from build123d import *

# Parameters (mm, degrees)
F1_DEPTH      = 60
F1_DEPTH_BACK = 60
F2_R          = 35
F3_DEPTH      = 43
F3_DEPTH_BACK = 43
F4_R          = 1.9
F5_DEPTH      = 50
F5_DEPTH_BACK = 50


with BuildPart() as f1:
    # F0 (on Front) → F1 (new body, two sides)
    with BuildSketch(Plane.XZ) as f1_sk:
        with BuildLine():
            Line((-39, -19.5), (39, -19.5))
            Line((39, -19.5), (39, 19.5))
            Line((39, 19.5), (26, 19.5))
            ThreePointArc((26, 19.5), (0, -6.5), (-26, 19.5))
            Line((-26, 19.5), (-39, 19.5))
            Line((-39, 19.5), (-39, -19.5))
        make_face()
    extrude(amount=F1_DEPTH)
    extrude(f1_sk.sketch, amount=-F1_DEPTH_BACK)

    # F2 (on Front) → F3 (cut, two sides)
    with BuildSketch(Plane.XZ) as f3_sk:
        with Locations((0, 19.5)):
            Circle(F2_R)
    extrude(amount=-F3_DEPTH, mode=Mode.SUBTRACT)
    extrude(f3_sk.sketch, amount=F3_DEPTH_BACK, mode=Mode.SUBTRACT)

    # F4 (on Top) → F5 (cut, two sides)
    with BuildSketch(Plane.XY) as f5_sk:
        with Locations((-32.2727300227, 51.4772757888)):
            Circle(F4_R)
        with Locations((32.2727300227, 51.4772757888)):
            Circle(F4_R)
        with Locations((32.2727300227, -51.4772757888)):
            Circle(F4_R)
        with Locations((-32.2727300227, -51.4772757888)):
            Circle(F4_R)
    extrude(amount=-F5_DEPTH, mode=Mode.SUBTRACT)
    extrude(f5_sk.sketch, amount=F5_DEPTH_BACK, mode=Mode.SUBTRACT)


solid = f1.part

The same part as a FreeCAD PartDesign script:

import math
import FreeCAD as App
import Part
import Sketcher
from FreeCAD import Vector

doc = App.newDocument("Part")
params = doc.addObject("Spreadsheet::Sheet", "Params")
for row, (alias, value) in enumerate([
    ("sketch1_radius", "26 mm"),
    ("sketch1_width", "78 mm"),
    ("sketch1_height", "39 mm"),
    ("pad1_length", "60 mm"),
    ("pad1_length2", "60 mm"),
    ("sketch2_diameter", "70 mm"),
    ("pocket1_length", "43 mm"),
    ("pocket1_length2", "43 mm"),
    ("sketch3_diameter", "3.8 mm"),
], start=1):
    params.set(f"A{row}", alias)
    params.set(f"B{row}", "=" + value)
    params.setAlias(f"B{row}", alias)

body = doc.addObject("PartDesign::Body", "Body")

sketch1 = body.newObject("Sketcher::SketchObject", "Sketch")
sketch1.AttachmentSupport = (doc.getObject("XZ_Plane"), [""])
sketch1.MapMode = "FlatFace"
sketch1.addGeometry([
    Part.LineSegment(Vector(-39, -20, 0), Vector(39, -20, 0)),
    Part.LineSegment(Vector(39, -20, 0), Vector(39, 20, 0)),
    Part.LineSegment(Vector(39, 20, 0), Vector(26, 20, 0)),
    Part.ArcOfCircle(Part.Circle(Vector(0, 20, 0), Vector(0, 0, 1), 26), math.radians(180), math.radians(360)),
    Part.LineSegment(Vector(-26, 20, 0), Vector(-39, 20, 0)),
    Part.LineSegment(Vector(-39, 20, 0), Vector(-39, -20, 0)),
], False)
sketch1.addConstraint([
    Sketcher.Constraint("Coincident", 0, 2, 1, 1),
    Sketcher.Constraint("Coincident", 1, 2, 2, 1),
    Sketcher.Constraint("Coincident", 2, 2, 3, 2),
    Sketcher.Constraint("Coincident", 3, 1, 4, 1),
    Sketcher.Constraint("Coincident", 4, 2, 5, 1),
    Sketcher.Constraint("Coincident", 5, 2, 0, 1),
    Sketcher.Constraint("Horizontal", 0),
    Sketcher.Constraint("Vertical", 1),
    Sketcher.Constraint("Horizontal", 2),
    Sketcher.Constraint("Horizontal", 4),
    Sketcher.Constraint("Vertical", 5),
    Sketcher.Constraint("Symmetric", 0, 2, 4, 2, -1, 1),
    Sketcher.Constraint("Symmetric", 2, 2, 3, 1, -2),
    Sketcher.Constraint("Horizontal", 3, 3, 1, 2),
    Sketcher.Constraint("Radius", 3, 26.0),
    Sketcher.Constraint("DistanceX", 0, 1, 0, 2, 78.0),
    Sketcher.Constraint("DistanceY", 1, 1, 1, 2, 39.0),
])
sketch1.setExpression("Constraints[14]", "Params.sketch1_radius")
sketch1.setExpression("Constraints[15]", "Params.sketch1_width")
sketch1.setExpression("Constraints[16]", "Params.sketch1_height")
pad1 = body.newObject("PartDesign::Pad", "Pad")
pad1.Profile = sketch1
pad1.Type = "TwoLengths"
pad1.setExpression("Length", "Params.pad1_length")
pad1.setExpression("Length2", "Params.pad1_length2")

sketch2 = body.newObject("Sketcher::SketchObject", "Sketch001")
sketch2.AttachmentSupport = (doc.getObject("XZ_Plane"), [""])
sketch2.MapMode = "FlatFace"
sketch2.addGeometry(Part.Circle(Vector(0, 20, 0), Vector(0, 0, 1), 35), False)
sketch2.addConstraint([
    Sketcher.Constraint("PointOnObject", 0, 3, -2),
    Sketcher.Constraint("Diameter", 0, 70.0),
    Sketcher.Constraint("DistanceY", -1, 1, 0, 3, 19.5),
])
sketch2.setExpression("Constraints[1]", "Params.sketch2_diameter")
pocket1 = body.newObject("PartDesign::Pocket", "Pocket")
pocket1.Profile = sketch2
pocket1.Type = "TwoLengths"
pocket1.setExpression("Length", "Params.pocket1_length")
pocket1.setExpression("Length2", "Params.pocket1_length2")

sketch3 = body.newObject("Sketcher::SketchObject", "Sketch002")
sketch3.AttachmentSupport = (doc.getObject("XY_Plane"), [""])
sketch3.MapMode = "FlatFace"
sketch3.addGeometry([
    Part.Circle(Vector(-32.3, 51.5, 0), Vector(0, 0, 1), 1.9),
    Part.Circle(Vector(32.3, 51.5, 0), Vector(0, 0, 1), 1.9),
    Part.Circle(Vector(32.3, -51.5, 0), Vector(0, 0, 1), 1.9),
    Part.Circle(Vector(-32.3, -51.5, 0), Vector(0, 0, 1), 1.9),
], False)
sketch3.addConstraint([
    Sketcher.Constraint("Equal", 0, 1),
    Sketcher.Constraint("Equal", 1, 2),
    Sketcher.Constraint("Equal", 2, 3),
    Sketcher.Constraint("Symmetric", 0, 3, 2, 3, -1, 1),
    Sketcher.Constraint("Symmetric", 1, 3, 3, 3, -1, 1),
    Sketcher.Constraint("Symmetric", 0, 3, 1, 3, -2),
    Sketcher.Constraint("Diameter", 0, 3.8),
    Sketcher.Constraint("DistanceX", 0, 3, -1, 1, 32.27273),
    Sketcher.Constraint("DistanceY", 2, 3, 1, 3, 102.954552),
])
sketch3.setExpression("Constraints[6]", "Params.sketch3_diameter")
pocket2 = body.newObject("PartDesign::Pocket", "Pocket001")
pocket2.Profile = sketch3
pocket2.Type = "ThroughAll"
pocket2.Midplane = True

doc.recompute()
